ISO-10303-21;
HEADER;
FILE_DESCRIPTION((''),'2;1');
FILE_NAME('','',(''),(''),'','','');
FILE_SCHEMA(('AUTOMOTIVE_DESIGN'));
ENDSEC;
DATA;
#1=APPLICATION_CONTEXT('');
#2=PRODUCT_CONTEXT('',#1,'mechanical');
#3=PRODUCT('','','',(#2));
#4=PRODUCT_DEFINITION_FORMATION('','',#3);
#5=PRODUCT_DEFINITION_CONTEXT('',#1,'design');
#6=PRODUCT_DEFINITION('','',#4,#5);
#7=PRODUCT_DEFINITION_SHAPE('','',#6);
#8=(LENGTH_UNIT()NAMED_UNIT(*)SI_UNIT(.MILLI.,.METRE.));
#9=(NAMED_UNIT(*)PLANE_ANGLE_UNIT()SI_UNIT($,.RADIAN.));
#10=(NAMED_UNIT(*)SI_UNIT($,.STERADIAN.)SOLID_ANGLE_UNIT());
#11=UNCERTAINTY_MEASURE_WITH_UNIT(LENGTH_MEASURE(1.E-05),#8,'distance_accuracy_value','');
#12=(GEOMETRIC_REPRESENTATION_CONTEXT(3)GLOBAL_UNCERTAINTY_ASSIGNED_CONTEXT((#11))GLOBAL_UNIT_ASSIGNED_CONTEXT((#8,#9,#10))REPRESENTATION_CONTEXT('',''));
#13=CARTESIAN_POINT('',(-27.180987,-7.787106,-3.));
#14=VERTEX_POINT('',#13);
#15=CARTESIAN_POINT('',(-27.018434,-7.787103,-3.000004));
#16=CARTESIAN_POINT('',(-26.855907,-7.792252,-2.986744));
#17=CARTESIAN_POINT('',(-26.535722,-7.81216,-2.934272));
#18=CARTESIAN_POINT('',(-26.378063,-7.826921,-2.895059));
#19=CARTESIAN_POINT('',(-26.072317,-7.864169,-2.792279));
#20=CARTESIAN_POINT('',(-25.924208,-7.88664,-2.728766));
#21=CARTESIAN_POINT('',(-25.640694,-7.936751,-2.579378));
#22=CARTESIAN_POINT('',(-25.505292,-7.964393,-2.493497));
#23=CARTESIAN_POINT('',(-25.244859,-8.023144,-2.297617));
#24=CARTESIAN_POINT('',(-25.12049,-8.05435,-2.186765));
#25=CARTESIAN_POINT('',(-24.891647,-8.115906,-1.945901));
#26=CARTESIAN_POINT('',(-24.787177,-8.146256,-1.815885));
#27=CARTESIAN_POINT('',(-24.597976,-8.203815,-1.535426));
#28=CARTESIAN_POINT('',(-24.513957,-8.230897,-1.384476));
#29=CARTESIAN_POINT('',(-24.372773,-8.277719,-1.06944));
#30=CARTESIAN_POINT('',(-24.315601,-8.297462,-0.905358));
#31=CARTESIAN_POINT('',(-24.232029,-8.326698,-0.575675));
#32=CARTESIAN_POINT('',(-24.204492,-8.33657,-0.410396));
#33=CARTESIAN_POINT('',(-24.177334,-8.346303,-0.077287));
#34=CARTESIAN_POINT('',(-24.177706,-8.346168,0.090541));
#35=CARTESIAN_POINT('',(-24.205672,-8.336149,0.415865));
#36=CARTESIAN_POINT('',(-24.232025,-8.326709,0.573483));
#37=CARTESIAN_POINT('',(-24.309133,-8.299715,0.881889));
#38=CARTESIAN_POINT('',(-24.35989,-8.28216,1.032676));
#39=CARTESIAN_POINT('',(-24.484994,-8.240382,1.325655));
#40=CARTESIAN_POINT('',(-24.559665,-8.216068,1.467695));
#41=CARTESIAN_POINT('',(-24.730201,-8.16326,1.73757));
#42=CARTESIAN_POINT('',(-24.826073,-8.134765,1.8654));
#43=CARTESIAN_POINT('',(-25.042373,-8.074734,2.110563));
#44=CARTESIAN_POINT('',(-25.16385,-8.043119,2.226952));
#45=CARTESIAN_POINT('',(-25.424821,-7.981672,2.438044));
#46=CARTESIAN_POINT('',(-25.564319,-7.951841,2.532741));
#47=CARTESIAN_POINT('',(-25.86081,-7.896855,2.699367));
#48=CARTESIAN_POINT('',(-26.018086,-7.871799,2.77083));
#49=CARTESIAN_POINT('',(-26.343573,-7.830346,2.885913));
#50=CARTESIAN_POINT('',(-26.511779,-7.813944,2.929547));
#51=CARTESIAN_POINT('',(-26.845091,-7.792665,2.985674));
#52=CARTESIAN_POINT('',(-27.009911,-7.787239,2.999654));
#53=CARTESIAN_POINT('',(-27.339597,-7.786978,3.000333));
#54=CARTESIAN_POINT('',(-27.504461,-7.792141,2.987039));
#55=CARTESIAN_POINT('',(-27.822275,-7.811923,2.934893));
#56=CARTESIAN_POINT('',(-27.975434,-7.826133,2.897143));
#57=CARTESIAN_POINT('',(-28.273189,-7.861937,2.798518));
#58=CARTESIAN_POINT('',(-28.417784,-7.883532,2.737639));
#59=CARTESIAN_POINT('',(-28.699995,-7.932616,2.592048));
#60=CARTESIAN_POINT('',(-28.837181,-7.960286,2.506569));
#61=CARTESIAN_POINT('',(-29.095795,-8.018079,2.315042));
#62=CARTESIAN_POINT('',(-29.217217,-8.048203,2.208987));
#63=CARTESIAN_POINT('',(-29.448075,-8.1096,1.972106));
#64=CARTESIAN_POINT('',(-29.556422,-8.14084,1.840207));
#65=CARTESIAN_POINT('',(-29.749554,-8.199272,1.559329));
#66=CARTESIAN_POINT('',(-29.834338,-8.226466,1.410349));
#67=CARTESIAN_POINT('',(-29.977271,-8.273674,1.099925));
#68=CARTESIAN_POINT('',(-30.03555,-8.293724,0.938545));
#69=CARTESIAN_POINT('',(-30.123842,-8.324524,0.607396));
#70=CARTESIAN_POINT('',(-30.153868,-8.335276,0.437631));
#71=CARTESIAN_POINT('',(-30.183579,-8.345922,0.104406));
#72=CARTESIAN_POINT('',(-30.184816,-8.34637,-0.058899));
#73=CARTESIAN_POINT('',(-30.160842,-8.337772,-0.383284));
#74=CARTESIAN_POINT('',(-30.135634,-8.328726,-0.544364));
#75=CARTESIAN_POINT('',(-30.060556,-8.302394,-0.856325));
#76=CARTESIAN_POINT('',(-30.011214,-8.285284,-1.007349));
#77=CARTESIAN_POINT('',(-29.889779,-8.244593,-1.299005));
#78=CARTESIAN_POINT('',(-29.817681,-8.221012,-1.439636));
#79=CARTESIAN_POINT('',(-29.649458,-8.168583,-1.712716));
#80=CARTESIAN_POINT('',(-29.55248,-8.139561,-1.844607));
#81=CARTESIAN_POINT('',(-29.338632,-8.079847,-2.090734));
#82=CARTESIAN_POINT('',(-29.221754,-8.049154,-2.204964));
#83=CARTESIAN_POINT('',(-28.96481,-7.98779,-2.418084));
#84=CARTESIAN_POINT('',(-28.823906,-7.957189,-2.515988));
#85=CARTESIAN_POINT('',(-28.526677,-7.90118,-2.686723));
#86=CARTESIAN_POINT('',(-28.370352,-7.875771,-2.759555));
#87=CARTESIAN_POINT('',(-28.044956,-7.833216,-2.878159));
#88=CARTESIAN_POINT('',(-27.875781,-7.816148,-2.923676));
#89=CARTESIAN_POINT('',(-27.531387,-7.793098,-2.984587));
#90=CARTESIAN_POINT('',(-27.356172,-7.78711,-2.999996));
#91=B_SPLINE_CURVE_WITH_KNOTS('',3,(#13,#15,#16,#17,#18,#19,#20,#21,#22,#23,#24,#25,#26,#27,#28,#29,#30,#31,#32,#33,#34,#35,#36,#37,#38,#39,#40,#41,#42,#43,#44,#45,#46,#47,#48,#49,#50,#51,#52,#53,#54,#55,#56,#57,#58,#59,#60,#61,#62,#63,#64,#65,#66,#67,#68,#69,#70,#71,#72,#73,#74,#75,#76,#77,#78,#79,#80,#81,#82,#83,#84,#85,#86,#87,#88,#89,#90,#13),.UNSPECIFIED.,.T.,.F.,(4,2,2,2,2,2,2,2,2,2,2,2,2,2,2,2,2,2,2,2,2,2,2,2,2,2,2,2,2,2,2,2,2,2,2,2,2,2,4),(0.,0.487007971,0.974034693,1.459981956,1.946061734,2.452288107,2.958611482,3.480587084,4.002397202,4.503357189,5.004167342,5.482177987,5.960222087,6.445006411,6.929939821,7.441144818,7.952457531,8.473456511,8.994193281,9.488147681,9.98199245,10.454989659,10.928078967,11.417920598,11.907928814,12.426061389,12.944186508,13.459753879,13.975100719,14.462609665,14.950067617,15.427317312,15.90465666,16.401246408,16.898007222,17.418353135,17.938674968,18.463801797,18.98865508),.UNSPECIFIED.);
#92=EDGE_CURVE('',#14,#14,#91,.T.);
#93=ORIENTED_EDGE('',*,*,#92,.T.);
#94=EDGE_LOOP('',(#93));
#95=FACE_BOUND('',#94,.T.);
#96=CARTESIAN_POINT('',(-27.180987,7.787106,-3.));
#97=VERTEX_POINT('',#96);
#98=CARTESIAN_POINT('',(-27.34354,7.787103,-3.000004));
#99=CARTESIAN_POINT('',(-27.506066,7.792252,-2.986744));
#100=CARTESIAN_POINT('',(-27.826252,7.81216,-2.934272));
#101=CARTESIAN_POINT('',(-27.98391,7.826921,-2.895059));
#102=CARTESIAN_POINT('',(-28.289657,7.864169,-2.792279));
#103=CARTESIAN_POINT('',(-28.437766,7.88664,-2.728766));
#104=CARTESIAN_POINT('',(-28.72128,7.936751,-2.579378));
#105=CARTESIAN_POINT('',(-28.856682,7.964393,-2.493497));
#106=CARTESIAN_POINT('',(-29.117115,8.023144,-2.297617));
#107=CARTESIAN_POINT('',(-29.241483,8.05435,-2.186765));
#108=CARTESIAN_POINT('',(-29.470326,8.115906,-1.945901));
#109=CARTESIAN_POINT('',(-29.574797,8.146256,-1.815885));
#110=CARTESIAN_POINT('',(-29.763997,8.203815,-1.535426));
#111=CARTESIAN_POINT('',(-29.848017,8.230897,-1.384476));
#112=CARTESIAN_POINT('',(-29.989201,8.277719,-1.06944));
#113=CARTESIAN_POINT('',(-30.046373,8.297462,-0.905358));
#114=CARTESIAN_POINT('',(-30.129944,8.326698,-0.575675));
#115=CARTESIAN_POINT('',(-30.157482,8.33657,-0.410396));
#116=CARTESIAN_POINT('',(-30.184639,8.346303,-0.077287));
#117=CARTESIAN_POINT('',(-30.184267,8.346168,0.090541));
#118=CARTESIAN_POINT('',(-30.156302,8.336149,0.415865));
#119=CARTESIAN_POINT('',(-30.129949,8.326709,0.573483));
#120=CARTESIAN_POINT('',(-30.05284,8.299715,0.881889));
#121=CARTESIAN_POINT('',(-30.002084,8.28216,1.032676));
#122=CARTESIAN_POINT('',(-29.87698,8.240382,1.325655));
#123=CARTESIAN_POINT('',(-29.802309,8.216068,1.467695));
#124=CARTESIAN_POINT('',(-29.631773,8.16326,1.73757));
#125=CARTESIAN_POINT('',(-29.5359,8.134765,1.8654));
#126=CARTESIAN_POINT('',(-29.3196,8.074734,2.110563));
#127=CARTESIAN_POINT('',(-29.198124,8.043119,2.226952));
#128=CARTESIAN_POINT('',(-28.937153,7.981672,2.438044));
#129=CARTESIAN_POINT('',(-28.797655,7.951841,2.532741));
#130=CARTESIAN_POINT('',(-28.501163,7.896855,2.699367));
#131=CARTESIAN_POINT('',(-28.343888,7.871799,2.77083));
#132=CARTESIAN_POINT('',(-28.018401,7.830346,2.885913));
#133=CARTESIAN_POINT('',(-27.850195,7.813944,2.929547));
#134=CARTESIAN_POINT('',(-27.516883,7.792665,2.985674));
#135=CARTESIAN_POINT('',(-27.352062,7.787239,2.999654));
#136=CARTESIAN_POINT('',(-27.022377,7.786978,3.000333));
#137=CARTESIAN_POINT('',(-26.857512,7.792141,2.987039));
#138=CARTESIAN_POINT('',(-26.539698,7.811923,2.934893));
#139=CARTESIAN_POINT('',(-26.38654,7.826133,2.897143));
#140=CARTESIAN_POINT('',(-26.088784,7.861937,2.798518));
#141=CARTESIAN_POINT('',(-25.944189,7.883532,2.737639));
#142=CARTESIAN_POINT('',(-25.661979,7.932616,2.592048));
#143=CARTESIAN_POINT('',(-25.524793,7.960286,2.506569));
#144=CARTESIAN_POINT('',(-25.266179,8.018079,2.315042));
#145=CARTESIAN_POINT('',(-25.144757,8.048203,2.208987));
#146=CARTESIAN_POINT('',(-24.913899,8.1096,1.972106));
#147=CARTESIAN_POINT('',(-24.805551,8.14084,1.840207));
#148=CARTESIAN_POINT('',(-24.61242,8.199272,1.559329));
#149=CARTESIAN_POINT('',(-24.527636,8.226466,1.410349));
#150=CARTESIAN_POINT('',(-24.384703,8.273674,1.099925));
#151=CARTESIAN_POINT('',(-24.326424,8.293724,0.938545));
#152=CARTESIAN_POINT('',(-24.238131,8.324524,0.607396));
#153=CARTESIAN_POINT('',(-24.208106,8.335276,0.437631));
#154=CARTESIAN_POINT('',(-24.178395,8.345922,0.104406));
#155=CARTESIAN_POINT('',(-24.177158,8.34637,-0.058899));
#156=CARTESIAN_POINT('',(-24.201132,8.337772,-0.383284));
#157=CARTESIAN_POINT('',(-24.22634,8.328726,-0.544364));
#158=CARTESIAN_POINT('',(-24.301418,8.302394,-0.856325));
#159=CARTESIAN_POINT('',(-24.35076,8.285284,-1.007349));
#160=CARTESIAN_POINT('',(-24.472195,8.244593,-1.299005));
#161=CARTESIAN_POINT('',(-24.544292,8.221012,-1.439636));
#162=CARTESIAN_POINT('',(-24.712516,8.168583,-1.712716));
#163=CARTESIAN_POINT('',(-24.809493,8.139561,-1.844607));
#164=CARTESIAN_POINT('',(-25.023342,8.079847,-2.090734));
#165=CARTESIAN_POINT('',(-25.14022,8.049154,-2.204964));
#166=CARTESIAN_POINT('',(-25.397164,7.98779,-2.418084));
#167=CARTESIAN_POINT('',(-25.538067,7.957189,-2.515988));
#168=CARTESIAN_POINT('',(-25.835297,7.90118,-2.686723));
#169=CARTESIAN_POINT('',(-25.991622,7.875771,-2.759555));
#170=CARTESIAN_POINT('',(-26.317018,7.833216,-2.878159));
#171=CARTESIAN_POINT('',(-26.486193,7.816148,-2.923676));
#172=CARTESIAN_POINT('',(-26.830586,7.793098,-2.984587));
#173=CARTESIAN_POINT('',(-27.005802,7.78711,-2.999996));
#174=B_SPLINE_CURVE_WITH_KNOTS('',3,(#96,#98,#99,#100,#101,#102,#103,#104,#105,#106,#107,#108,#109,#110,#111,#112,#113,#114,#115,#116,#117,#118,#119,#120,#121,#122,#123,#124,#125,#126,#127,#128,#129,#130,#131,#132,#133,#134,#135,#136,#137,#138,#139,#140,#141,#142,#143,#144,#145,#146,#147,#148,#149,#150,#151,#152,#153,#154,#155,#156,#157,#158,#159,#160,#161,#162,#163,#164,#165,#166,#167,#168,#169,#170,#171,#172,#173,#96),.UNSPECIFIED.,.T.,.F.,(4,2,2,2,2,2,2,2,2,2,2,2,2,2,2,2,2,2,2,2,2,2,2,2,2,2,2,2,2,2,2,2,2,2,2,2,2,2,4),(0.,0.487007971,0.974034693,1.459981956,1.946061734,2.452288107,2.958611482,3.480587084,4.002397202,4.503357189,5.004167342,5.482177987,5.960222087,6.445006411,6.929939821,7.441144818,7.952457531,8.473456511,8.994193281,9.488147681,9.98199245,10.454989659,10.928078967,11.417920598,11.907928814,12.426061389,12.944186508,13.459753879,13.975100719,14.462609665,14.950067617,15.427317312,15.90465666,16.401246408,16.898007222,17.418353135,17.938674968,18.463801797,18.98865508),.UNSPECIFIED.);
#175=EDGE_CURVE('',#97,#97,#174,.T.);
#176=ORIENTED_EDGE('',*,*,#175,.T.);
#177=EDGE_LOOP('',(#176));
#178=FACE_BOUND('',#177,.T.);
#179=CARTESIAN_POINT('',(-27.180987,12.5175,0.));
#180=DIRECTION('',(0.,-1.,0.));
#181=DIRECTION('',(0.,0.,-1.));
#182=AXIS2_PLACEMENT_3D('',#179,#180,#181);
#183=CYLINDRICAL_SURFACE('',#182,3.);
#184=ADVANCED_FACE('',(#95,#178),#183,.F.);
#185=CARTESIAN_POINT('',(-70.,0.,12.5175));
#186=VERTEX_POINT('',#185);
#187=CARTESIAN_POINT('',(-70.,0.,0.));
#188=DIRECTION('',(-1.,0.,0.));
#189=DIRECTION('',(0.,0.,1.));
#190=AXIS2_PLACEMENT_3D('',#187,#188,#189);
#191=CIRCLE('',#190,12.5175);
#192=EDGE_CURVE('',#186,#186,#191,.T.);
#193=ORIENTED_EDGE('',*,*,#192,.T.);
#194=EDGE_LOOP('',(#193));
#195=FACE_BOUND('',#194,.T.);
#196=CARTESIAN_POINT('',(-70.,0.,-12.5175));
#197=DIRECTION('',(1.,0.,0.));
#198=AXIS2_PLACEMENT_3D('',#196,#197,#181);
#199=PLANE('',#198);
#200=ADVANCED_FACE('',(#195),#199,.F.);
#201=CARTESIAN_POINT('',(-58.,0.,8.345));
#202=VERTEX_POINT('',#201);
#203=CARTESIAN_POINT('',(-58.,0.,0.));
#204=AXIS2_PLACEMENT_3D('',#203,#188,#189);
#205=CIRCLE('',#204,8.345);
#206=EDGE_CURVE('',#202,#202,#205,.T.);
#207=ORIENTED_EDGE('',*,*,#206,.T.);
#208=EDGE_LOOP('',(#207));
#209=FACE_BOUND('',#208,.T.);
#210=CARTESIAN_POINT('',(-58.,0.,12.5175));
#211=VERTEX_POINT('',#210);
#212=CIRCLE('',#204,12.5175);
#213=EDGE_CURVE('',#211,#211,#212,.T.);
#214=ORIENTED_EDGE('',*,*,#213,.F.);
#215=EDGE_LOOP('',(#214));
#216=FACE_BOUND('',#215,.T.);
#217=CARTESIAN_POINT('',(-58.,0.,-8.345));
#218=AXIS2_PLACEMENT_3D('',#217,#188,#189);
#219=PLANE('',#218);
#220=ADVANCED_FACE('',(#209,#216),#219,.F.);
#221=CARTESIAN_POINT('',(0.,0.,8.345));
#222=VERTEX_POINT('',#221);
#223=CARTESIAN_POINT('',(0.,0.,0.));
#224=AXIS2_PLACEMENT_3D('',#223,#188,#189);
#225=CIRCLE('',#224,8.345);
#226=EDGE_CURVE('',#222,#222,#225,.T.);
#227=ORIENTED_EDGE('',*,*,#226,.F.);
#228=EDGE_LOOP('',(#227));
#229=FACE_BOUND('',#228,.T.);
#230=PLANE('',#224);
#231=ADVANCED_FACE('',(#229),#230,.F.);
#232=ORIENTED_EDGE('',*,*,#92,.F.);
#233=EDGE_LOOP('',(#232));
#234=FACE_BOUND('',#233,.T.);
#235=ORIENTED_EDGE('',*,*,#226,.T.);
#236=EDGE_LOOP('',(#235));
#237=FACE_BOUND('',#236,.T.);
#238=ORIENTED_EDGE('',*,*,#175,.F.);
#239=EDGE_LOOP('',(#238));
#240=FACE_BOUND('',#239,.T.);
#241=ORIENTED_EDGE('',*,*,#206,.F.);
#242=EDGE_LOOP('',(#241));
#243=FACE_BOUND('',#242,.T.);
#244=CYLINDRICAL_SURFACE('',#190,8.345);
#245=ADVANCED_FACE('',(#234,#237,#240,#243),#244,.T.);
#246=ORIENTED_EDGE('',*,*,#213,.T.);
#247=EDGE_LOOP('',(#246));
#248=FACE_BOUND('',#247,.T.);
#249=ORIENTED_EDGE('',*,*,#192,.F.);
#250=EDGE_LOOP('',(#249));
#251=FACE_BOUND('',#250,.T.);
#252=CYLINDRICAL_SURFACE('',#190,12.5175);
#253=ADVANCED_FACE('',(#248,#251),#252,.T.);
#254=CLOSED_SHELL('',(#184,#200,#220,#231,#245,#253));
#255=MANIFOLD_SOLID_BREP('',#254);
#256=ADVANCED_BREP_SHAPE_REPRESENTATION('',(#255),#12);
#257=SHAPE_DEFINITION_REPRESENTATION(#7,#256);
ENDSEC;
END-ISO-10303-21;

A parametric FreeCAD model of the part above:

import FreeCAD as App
import Part
import Sketcher
Q = App.Units.Quantity

doc = App.newDocument("Part")
body = doc.addObject("PartDesign::Body", "Body")

# Sketch on XZ plane
sketch1 = doc.addObject("Sketcher::SketchObject", "Sketch")
body.addObject(sketch1)
sketch1.AttachmentSupport = (doc.XZ_Plane, [""])
sketch1.MapMode = "FlatFace"
sketch1.addGeometry([
    Part.LineSegment(App.Vector(0, 0, 0), App.Vector(0, -8.345, 0)),  # 0
    Part.LineSegment(App.Vector(0, -8.345, 0), App.Vector(-58, -8.345, 0)),  # 1
    Part.LineSegment(App.Vector(-58, -8.345, 0), App.Vector(-58, -12.5175, 0)),  # 2
    Part.LineSegment(App.Vector(-58, -12.5175, 0), App.Vector(-70, -12.5175, 0)),  # 3
    Part.LineSegment(App.Vector(-70, -12.5175, 0), App.Vector(-70, 0, 0)),  # 4
    Part.LineSegment(App.Vector(-70, 0, 0), App.Vector(0, 0, 0)),  # 5
], False)
sketch1.addConstraint([
    Sketcher.Constraint("Coincident", 0, 2, 1, 1),
    Sketcher.Constraint("Coincident", 1, 2, 2, 1),
    Sketcher.Constraint("Coincident", 2, 2, 3, 1),
    Sketcher.Constraint("Coincident", 3, 2, 4, 1),
    Sketcher.Constraint("Coincident", 4, 2, 5, 1),
    Sketcher.Constraint("Coincident", 5, 2, 0, 1),
    Sketcher.Constraint("Vertical", 0),
    Sketcher.Constraint("Horizontal", 1),
    Sketcher.Constraint("Vertical", 2),
    Sketcher.Constraint("Horizontal", 3),
    Sketcher.Constraint("Vertical", 4),
    Sketcher.Constraint("Horizontal", 5),
    Sketcher.Constraint("Coincident", 5, 2, -1, 1),
    Sketcher.Constraint("DistanceX", 1, 2, 1, 1, Q("58 mm")),
    Sketcher.Constraint("DistanceX", 3, 2, 3, 1, Q("12 mm")),
    Sketcher.Constraint("DistanceY", 0, 2, 0, 1, Q("8.345 mm")),
    Sketcher.Constraint("DistanceY", 2, 2, 2, 1, Q("4.1725 mm")),
])
revolution = doc.addObject("PartDesign::Revolution", "Revolution")
body.addObject(revolution)
revolution.Profile = sketch1
revolution.ReferenceAxis = (sketch1, ["H_Axis"])
revolution.Angle = 360

# Sketch on XZ plane
sketch2 = doc.addObject("Sketcher::SketchObject", "Sketch001")
body.addObject(sketch2)
sketch2.AttachmentSupport = (doc.XZ_Plane, [""])
sketch2.MapMode = "FlatFace"
sketch2.addGeometry(Part.Circle(App.Vector(-27.180987, 0, 0), App.Vector(0, 0, 1), 3), False)
sketch2.addConstraint([
    Sketcher.Constraint("PointOnObject", 0, 3, -1),
    Sketcher.Constraint("Diameter", 0, Q("6 mm")),
    Sketcher.Constraint("DistanceX", 0, 3, -1, 1, Q("27.180987 mm")),
])
pocket1 = doc.addObject("PartDesign::Pocket", "Pocket")
body.addObject(pocket1)
pocket1.Profile = sketch2
pocket1.Type = "ThroughAll"
pocket1.Midplane = True

doc.recompute()
